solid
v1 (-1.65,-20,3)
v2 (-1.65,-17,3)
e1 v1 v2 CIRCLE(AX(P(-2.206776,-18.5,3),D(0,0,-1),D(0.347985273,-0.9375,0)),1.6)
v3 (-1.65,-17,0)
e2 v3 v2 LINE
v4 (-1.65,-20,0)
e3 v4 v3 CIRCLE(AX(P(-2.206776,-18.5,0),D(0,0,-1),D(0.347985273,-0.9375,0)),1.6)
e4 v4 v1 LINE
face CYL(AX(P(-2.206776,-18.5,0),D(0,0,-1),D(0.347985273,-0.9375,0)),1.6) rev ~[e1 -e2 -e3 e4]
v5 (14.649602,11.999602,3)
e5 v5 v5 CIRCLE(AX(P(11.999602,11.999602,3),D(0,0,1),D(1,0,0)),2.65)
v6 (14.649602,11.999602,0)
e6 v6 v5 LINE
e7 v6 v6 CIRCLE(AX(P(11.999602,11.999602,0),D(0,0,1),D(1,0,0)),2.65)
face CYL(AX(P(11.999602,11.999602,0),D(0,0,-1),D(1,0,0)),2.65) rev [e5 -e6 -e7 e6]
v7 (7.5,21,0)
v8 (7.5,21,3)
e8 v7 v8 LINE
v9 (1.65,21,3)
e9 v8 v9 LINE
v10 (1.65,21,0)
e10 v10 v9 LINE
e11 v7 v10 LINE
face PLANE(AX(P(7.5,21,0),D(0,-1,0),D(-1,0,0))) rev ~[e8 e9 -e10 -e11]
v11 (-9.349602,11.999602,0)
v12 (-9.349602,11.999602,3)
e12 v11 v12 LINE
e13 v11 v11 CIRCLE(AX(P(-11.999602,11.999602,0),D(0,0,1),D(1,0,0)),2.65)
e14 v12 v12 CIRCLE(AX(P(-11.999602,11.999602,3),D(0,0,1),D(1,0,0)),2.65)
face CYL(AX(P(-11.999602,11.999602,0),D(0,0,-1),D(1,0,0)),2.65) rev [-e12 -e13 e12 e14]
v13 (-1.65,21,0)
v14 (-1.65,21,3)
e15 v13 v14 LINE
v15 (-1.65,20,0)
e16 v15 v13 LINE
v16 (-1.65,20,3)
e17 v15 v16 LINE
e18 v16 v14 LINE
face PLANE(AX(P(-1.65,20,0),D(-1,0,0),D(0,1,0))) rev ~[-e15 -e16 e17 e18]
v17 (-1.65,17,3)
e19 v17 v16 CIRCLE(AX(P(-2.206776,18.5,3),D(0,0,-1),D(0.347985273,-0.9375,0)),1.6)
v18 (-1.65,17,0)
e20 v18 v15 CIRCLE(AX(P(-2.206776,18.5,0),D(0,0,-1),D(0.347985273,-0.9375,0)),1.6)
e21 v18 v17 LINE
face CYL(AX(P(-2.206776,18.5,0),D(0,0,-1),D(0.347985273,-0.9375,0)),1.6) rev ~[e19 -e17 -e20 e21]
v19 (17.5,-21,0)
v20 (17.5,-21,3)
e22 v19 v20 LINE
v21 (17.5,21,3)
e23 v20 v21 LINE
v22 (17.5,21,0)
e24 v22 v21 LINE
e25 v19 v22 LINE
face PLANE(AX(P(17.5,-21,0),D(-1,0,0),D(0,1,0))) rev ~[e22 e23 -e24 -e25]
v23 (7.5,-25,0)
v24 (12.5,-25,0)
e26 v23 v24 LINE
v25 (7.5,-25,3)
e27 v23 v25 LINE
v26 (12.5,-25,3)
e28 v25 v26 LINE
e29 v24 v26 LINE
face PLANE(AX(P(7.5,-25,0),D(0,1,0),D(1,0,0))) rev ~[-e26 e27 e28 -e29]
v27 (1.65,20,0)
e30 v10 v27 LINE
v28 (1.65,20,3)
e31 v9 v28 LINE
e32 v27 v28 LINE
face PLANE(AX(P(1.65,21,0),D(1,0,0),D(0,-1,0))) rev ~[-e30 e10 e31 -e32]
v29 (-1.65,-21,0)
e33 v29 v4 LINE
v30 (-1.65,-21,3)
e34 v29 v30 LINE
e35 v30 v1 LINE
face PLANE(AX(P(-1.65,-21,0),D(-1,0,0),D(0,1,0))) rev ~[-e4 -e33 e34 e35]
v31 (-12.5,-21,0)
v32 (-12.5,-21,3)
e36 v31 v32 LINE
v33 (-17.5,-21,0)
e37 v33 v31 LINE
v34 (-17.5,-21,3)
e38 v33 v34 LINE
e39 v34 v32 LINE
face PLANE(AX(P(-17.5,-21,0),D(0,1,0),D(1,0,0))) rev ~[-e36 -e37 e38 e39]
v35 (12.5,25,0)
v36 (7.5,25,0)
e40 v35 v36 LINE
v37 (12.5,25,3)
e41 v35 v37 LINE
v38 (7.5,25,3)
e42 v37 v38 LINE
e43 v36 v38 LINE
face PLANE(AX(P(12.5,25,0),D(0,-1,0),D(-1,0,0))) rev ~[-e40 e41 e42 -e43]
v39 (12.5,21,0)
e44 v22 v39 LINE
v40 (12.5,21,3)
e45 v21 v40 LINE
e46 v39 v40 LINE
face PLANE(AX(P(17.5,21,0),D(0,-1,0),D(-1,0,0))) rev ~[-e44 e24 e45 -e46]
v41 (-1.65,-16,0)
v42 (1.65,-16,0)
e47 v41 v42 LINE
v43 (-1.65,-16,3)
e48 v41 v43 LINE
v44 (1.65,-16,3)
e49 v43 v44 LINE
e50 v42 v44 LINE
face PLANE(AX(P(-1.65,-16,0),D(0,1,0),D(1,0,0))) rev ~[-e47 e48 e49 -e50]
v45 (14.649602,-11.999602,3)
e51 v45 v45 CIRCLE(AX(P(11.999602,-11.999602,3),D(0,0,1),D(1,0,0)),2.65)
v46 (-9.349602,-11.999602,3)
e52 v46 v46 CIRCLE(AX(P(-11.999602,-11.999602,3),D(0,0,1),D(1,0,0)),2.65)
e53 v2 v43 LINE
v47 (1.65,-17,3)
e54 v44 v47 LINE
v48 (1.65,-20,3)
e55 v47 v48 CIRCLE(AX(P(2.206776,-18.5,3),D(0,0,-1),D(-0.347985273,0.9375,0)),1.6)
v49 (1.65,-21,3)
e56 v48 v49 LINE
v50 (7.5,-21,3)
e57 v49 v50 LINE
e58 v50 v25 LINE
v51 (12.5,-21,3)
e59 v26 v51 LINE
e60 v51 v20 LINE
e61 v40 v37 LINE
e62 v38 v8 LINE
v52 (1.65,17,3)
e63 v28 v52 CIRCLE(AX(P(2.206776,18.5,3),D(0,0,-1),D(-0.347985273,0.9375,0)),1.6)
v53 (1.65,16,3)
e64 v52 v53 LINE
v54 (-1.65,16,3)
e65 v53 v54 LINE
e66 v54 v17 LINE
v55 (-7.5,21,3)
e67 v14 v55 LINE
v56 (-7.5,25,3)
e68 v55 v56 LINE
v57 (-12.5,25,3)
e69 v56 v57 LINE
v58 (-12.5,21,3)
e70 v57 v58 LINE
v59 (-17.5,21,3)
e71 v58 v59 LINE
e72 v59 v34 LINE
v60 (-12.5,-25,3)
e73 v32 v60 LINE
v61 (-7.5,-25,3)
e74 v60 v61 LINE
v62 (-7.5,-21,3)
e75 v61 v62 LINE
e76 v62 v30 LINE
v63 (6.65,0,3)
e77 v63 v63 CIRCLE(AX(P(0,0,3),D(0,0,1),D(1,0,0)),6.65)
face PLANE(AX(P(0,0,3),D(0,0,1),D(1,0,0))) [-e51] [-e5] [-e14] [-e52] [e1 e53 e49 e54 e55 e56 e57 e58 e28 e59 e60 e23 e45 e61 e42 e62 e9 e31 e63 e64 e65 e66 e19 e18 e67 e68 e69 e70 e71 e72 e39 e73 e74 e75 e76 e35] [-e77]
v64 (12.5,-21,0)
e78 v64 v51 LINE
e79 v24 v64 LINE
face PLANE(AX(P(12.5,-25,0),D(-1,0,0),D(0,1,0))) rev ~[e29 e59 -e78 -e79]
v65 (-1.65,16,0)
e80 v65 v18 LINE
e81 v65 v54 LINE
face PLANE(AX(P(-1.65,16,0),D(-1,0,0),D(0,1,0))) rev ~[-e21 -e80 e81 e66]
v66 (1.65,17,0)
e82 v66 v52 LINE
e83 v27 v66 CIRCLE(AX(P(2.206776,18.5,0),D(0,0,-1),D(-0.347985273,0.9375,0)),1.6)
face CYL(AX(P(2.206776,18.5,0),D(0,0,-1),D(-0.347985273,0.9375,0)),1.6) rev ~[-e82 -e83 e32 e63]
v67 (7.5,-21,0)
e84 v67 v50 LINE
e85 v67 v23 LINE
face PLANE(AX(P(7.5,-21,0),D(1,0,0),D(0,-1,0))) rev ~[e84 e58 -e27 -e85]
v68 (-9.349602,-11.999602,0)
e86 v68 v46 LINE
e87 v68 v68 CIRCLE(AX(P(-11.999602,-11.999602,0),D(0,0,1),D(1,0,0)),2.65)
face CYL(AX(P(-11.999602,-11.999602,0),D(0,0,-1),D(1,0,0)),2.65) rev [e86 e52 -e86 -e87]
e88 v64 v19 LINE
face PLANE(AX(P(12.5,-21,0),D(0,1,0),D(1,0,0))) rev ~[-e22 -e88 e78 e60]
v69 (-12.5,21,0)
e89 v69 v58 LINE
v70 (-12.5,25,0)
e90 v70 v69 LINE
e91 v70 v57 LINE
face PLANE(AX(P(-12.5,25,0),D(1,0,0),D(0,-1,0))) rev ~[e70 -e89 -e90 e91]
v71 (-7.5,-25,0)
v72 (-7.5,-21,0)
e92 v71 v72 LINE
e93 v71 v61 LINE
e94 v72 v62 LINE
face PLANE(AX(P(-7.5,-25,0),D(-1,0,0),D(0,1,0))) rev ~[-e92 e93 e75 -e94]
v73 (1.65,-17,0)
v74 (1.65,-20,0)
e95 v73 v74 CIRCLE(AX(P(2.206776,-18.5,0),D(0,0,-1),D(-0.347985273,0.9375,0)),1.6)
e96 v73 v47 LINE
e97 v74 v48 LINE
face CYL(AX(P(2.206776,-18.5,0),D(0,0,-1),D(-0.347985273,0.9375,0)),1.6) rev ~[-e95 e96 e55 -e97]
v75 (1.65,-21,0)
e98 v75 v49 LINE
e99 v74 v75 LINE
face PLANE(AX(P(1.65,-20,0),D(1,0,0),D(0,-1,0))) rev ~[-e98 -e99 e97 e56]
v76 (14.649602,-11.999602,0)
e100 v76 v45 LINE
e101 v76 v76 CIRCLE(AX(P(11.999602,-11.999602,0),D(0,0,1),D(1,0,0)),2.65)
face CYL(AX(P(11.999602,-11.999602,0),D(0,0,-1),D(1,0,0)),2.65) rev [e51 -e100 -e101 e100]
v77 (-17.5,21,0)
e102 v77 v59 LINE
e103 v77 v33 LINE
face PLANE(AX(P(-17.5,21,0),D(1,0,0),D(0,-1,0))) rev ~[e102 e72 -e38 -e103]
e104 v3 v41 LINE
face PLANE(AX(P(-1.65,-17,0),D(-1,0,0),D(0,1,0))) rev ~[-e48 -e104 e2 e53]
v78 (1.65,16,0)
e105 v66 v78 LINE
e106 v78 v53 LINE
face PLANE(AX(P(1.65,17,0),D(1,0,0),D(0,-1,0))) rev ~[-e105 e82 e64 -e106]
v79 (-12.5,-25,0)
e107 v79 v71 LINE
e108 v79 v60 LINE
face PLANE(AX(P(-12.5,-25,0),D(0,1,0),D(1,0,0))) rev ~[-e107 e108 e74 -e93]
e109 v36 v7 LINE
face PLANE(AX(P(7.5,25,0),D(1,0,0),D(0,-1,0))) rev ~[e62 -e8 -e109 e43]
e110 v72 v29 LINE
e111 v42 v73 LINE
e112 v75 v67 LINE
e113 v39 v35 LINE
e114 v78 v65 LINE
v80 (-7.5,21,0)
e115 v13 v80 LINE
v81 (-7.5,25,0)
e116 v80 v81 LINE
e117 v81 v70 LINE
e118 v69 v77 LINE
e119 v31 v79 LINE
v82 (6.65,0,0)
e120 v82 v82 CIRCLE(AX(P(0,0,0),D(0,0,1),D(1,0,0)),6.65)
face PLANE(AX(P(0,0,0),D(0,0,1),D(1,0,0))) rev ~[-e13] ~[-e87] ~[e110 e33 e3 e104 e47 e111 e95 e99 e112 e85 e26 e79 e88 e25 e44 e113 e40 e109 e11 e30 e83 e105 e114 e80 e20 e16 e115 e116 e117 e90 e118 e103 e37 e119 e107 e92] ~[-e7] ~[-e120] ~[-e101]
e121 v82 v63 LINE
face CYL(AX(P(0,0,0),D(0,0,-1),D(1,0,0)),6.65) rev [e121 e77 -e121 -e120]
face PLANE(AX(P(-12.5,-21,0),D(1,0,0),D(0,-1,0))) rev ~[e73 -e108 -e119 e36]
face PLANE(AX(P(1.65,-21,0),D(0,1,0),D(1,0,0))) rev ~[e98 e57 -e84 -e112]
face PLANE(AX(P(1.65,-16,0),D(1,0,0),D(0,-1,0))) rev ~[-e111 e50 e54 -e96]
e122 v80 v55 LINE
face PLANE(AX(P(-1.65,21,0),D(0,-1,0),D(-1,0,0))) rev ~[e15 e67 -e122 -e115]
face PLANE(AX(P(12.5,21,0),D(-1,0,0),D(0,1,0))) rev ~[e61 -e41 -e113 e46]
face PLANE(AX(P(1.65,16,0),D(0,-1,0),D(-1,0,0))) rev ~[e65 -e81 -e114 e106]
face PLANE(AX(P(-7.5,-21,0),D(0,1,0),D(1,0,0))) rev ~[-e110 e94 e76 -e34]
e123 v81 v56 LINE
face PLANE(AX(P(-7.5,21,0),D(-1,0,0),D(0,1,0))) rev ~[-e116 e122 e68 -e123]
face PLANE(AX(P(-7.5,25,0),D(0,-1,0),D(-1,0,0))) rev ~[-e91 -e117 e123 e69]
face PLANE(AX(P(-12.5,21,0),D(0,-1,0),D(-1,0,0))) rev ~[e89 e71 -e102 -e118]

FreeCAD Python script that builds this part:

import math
import FreeCAD as App
import Part
import Sketcher
from FreeCAD import Vector

doc = App.newDocument("Part")
body = doc.addObject("PartDesign::Body", "Body")

# Sketch on XY plane
sketch1 = body.newObject("Sketcher::SketchObject", "Sketch")
sketch1.AttachmentSupport = (doc.getObject("XY_Plane"), [""])
sketch1.MapMode = "FlatFace"
sketch1.addGeometry([
    Part.LineSegment(Vector(17.5, -21, 0), Vector(17.5, 21, 0)),  # 0
    Part.LineSegment(Vector(17.5, 21, 0), Vector(12.5, 21, 0)),  # 1
    Part.LineSegment(Vector(12.5, 21, 0), Vector(12.5, 25, 0)),  # 2
    Part.LineSegment(Vector(12.5, 25, 0), Vector(7.5, 25, 0)),  # 3
    Part.LineSegment(Vector(7.5, 25, 0), Vector(7.5, 21, 0)),  # 4
    Part.LineSegment(Vector(7.5, 21, 0), Vector(1.65, 21, 0)),  # 5
    Part.LineSegment(Vector(1.65, 21, 0), Vector(1.65, 20, 0)),  # 6
    Part.ArcOfCircle(Part.Circle(Vector(2.206776, 18.5, 0), Vector(0, 0, 1), 1.6), math.radians(-110.364135), math.radians(110.364135)),  # 7
    Part.LineSegment(Vector(1.65, 17, 0), Vector(1.65, 16, 0)),  # 8
    Part.LineSegment(Vector(1.65, 16, 0), Vector(-1.65, 16, 0)),  # 9
    Part.LineSegment(Vector(-1.65, 16, 0), Vector(-1.65, 17, 0)),  # 10
    Part.ArcOfCircle(Part.Circle(Vector(-2.206776, 18.5, 0), Vector(0, 0, 1), 1.6), math.radians(69.635865), math.radians(290.364135)),  # 11
    Part.LineSegment(Vector(-1.65, 20, 0), Vector(-1.65, 21, 0)),  # 12
    Part.LineSegment(Vector(-1.65, 21, 0), Vector(-7.5, 21, 0)),  # 13
    Part.LineSegment(Vector(-7.5, 21, 0), Vector(-7.5, 25, 0)),  # 14
    Part.LineSegment(Vector(-7.5, 25, 0), Vector(-12.5, 25, 0)),  # 15
    Part.LineSegment(Vector(-12.5, 25, 0), Vector(-12.5, 21, 0)),  # 16
    Part.LineSegment(Vector(-12.5, 21, 0), Vector(-17.5, 21, 0)),  # 17
    Part.LineSegment(Vector(-17.5, 21, 0), Vector(-17.5, -21, 0)),  # 18
    Part.LineSegment(Vector(-17.5, -21, 0), Vector(-12.5, -21, 0)),  # 19
    Part.LineSegment(Vector(-12.5, -21, 0), Vector(-12.5, -25, 0)),  # 20
    Part.LineSegment(Vector(-12.5, -25, 0), Vector(-7.5, -25, 0)),  # 21
    Part.LineSegment(Vector(-7.5, -25, 0), Vector(-7.5, -21, 0)),  # 22
    Part.LineSegment(Vector(-7.5, -21, 0), Vector(-1.65, -21, 0)),  # 23
    Part.LineSegment(Vector(-1.65, -21, 0), Vector(-1.65, -20, 0)),  # 24
    Part.ArcOfCircle(Part.Circle(Vector(-2.206776, -18.5, 0), Vector(0, 0, 1), 1.6), math.radians(69.635865), math.radians(290.364135)),  # 25
    Part.LineSegment(Vector(-1.65, -17, 0), Vector(-1.65, -16, 0)),  # 26
    Part.LineSegment(Vector(-1.65, -16, 0), Vector(1.65, -16, 0)),  # 27
    Part.LineSegment(Vector(1.65, -16, 0), Vector(1.65, -17, 0)),  # 28
    Part.ArcOfCircle(Part.Circle(Vector(2.206776, -18.5, 0), Vector(0, 0, 1), 1.6), math.radians(-110.364135), math.radians(110.364135)),  # 29
    Part.LineSegment(Vector(1.65, -20, 0), Vector(1.65, -21, 0)),  # 30
    Part.LineSegment(Vector(1.65, -21, 0), Vector(7.5, -21, 0)),  # 31
    Part.LineSegment(Vector(7.5, -21, 0), Vector(7.5, -25, 0)),  # 32
    Part.LineSegment(Vector(7.5, -25, 0), Vector(12.5, -25, 0)),  # 33
    Part.LineSegment(Vector(12.5, -25, 0), Vector(12.5, -21, 0)),  # 34
    Part.LineSegment(Vector(12.5, -21, 0), Vector(17.5, -21, 0)),  # 35
    Part.Circle(Vector(-11.999602, -11.999602, 0), Vector(0, 0, 1), 2.65),  # 36
    Part.Circle(Vector(11.999602, -11.999602, 0), Vector(0, 0, 1), 2.65),  # 37
    Part.Circle(Vector(-11.999602, 11.999602, 0), Vector(0, 0, 1), 2.65),  # 38
    Part.Circle(Vector(0, 0, 0), Vector(0, 0, 1), 6.65),  # 39
    Part.Circle(Vector(11.999602, 11.999602, 0), Vector(0, 0, 1), 2.65),  # 40
], False)
sketch1.addConstraint([
    Sketcher.Constraint("Coincident", 0, 2, 1, 1),
    Sketcher.Constraint("Coincident", 1, 2, 2, 1),
    Sketcher.Constraint("Coincident", 2, 2, 3, 1),
    Sketcher.Constraint("Coincident", 3, 2, 4, 1),
    Sketcher.Constraint("Coincident", 4, 2, 5, 1),
    Sketcher.Constraint("Coincident", 5, 2, 6, 1),
    Sketcher.Constraint("Coincident", 6, 2, 7, 2),
    Sketcher.Constraint("Coincident", 7, 1, 8, 1),
    Sketcher.Constraint("Coincident", 8, 2, 9, 1),
    Sketcher.Constraint("Coincident", 9, 2, 10, 1),
    Sketcher.Constraint("Coincident", 10, 2, 11, 2),
    Sketcher.Constraint("Coincident", 11, 1, 12, 1),
    Sketcher.Constraint("Coincident", 12, 2, 13, 1),
    Sketcher.Constraint("Coincident", 13, 2, 14, 1),
    Sketcher.Constraint("Coincident", 14, 2, 15, 1),
    Sketcher.Constraint("Coincident", 15, 2, 16, 1),
    Sketcher.Constraint("Coincident", 16, 2, 17, 1),
    Sketcher.Constraint("Coincident", 17, 2, 18, 1),
    Sketcher.Constraint("Coincident", 18, 2, 19, 1),
    Sketcher.Constraint("Coincident", 19, 2, 20, 1),
    Sketcher.Constraint("Coincident", 20, 2, 21, 1),
    Sketcher.Constraint("Coincident", 21, 2, 22, 1),
    Sketcher.Constraint("Coincident", 22, 2, 23, 1),
    Sketcher.Constraint("Coincident", 23, 2, 24, 1),
    Sketcher.Constraint("Coincident", 24, 2, 25, 2),
    Sketcher.Constraint("Coincident", 25, 1, 26, 1),
    Sketcher.Constraint("Coincident", 26, 2, 27, 1),
    Sketcher.Constraint("Coincident", 27, 2, 28, 1),
    Sketcher.Constraint("Coincident", 28, 2, 29, 2),
    Sketcher.Constraint("Coincident", 29, 1, 30, 1),
    Sketcher.Constraint("Coincident", 30, 2, 31, 1),
    Sketcher.Constraint("Coincident", 31, 2, 32, 1),
    Sketcher.Constraint("Coincident", 32, 2, 33, 1),
    Sketcher.Constraint("Coincident", 33, 2, 34, 1),
    Sketcher.Constraint("Coincident", 34, 2, 35, 1),
    Sketcher.Constraint("Coincident", 35, 2, 0, 1),
    Sketcher.Constraint("Vertical", 0),
    Sketcher.Constraint("Horizontal", 1),
    Sketcher.Constraint("Vertical", 2),
    Sketcher.Constraint("Horizontal", 3),
    Sketcher.Constraint("Vertical", 4),
    Sketcher.Constraint("Horizontal", 5),
    Sketcher.Constraint("Vertical", 6),
    Sketcher.Constraint("Vertical", 8),
    Sketcher.Constraint("Horizontal", 9),
    Sketcher.Constraint("Vertical", 10),
    Sketcher.Constraint("Vertical", 12),
    Sketcher.Constraint("Horizontal", 13),
    Sketcher.Constraint("Vertical", 14),
    Sketcher.Constraint("Horizontal", 15),
    Sketcher.Constraint("Vertical", 16),
    Sketcher.Constraint("Horizontal", 17),
    Sketcher.Constraint("Vertical", 18),
    Sketcher.Constraint("Horizontal", 19),
    Sketcher.Constraint("Vertical", 20),
    Sketcher.Constraint("Horizontal", 21),
    Sketcher.Constraint("Vertical", 22),
    Sketcher.Constraint("Horizontal", 23),
    Sketcher.Constraint("Vertical", 24),
    Sketcher.Constraint("Vertical", 26),
    Sketcher.Constraint("Horizontal", 27),
    Sketcher.Constraint("Vertical", 28),
    Sketcher.Constraint("Vertical", 30),
    Sketcher.Constraint("Horizontal", 31),
    Sketcher.Constraint("Vertical", 32),
    Sketcher.Constraint("Horizontal", 33),
    Sketcher.Constraint("Vertical", 34),
    Sketcher.Constraint("Horizontal", 35),
    Sketcher.Constraint("Coincident", 39, 3, -1, 1),
    Sketcher.Constraint("Equal", 7, 11),
    Sketcher.Constraint("Equal", 11, 25),
    Sketcher.Constraint("Equal", 25, 29),
    Sketcher.Constraint("Equal", 36, 37),
    Sketcher.Constraint("Equal", 37, 38),
    Sketcher.Constraint("Equal", 38, 40),
    Sketcher.Constraint("Symmetric", 7, 3, 25, 3, -1, 1),
    Sketcher.Constraint("Symmetric", 11, 3, 29, 3, -1, 1),
    Sketcher.Constraint("Symmetric", 37, 3, 38, 3, -1, 1),
    Sketcher.Constraint("Symmetric", 36, 3, 40, 3, -1, 1),
    Sketcher.Constraint("Symmetric", 0, 2, 18, 2, -1, 1),
    Sketcher.Constraint("Symmetric", 2, 2, 20, 2, -1, 1),
    Sketcher.Constraint("Symmetric", 4, 2, 22, 2, -1, 1),
    Sketcher.Constraint("Symmetric", 8, 2, 26, 2, -1, 1),
    Sketcher.Constraint("Symmetric", 12, 2, 30, 2, -1, 1),
    Sketcher.Constraint("Symmetric", 14, 2, 32, 2, -1, 1),
    Sketcher.Constraint("Symmetric", 16, 2, 34, 2, -1, 1),
    Sketcher.Constraint("Symmetric", 7, 3, 11, 3, -2),
    Sketcher.Constraint("Symmetric", 36, 3, 37, 3, -2),
    Sketcher.Constraint("Symmetric", 5, 2, 12, 2, -2),
    Sketcher.Constraint("Symmetric", 3, 2, 14, 2, -2),
    Sketcher.Constraint("Symmetric", 1, 2, 16, 2, -2),
    Sketcher.Constraint("Horizontal", 1, 2, 4, 2),
    Sketcher.Constraint("Horizontal", 7, 1, 10, 2),
    Sketcher.Constraint("Horizontal", 25, 1, 28, 2),
    Sketcher.Constraint("Horizontal", 24, 2, 29, 1),
    Sketcher.Constraint("Vertical", 6, 2, 7, 1),
    Sketcher.Constraint("Equal", 1, 3),
    Sketcher.Constraint("Equal", 6, 8),
    Sketcher.Constraint("Diameter", 36, 5.3),
    Sketcher.Constraint("Diameter", 39, 13.3),
    Sketcher.Constraint("Radius", 7, 1.6),
    Sketcher.Constraint("DistanceX", 1, 2, 1, 1, 5.0),
    Sketcher.Constraint("DistanceY", 0, 1, 0, 2, 42.0),
    Sketcher.Constraint("DistanceY", 2, 1, 2, 2, 4.0),
    Sketcher.Constraint("DistanceY", 6, 2, 6, 1, 1.0),
    Sketcher.Constraint("DistanceX", 9, 2, 9, 1, 3.3),
    Sketcher.Constraint("DistanceY", -1, 1, 7, 1, 17.0),
    Sketcher.Constraint("DistanceX", 5, 2, 5, 1, 5.85),
    Sketcher.Constraint("DistanceX", 36, 3, 29, 3, 14.206379),
    Sketcher.Constraint("DistanceY", 36, 3, -1, 1, 11.999602),
])
pad1 = body.newObject("PartDesign::Pad", "Pad")
pad1.Profile = sketch1
pad1.Length = 3

doc.recompute()
